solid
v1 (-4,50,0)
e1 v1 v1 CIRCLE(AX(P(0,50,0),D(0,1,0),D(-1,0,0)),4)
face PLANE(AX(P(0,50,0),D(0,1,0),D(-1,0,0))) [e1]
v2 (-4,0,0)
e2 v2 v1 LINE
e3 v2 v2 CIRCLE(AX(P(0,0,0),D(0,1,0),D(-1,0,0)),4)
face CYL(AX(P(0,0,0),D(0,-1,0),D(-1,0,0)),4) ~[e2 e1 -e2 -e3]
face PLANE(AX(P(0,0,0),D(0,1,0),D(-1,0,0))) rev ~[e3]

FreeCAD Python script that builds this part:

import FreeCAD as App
import Part
import Sketcher

V = App.Vector
Q = App.Units.Quantity

doc = App.newDocument("Part")
body = doc.addObject("PartDesign::Body", "Body")

# Sketch on XZ plane
sketch1 = doc.addObject("Sketcher::SketchObject", "Sketch")
body.addObject(sketch1)
sketch1.AttachmentSupport = (doc.XZ_Plane, [""])
sketch1.MapMode = "FlatFace"
sketch1.addGeometry(Part.Circle(V(0, 0, 0), V(0, 0, 1), 4), False)
sketch1.addConstraint(Sketcher.Constraint("Coincident", 0, 3, -1, 1))
sketch1.addConstraint(Sketcher.Constraint("Diameter", 0, Q("8 mm")))
pad1 = doc.addObject("PartDesign::Pad", "Pad")
body.addObject(pad1)
pad1.Profile = sketch1
pad1.Length = 50
pad1.Reversed = True

doc.recompute()
